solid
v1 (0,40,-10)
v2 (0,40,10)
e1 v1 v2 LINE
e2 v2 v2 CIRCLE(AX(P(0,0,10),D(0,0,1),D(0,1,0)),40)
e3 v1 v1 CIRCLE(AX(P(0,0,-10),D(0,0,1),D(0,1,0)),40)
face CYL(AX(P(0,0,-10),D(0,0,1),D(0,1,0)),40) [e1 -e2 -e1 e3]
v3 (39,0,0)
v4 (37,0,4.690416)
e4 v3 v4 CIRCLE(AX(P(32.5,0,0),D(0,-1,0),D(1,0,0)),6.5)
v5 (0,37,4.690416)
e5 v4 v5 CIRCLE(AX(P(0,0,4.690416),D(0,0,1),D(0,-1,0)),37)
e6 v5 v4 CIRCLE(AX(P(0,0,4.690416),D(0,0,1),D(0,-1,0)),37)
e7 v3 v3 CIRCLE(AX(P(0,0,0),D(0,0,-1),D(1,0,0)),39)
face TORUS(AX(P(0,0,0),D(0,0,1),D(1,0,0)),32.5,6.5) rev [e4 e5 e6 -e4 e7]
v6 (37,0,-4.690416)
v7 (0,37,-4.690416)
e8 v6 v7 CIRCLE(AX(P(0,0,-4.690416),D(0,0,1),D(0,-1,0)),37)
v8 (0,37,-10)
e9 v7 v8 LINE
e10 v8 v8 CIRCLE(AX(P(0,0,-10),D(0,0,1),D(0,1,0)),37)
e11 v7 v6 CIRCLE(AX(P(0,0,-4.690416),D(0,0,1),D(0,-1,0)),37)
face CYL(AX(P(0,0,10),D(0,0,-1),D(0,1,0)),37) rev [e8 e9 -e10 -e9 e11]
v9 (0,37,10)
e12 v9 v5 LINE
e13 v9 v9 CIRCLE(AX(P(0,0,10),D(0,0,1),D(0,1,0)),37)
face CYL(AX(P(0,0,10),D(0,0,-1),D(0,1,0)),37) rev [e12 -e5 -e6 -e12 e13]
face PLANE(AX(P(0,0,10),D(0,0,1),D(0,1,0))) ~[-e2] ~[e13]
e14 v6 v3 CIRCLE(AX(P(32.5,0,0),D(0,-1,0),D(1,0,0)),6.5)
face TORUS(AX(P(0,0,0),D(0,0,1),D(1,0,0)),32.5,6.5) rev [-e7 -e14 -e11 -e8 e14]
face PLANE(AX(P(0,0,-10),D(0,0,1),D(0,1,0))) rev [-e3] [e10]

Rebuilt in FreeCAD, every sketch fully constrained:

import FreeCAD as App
import Part
import Sketcher
from FreeCAD import Vector
Q = App.Units.Quantity

doc = App.newDocument("Part")
body = doc.addObject("PartDesign::Body", "Body")

# Sketch on YZ plane
sketch1 = body.newObject("Sketcher::SketchObject", "Sketch")
sketch1.AttachmentSupport = (doc.getObject("YZ_Plane"), [""])
sketch1.MapMode = "FlatFace"
sketch1.addGeometry(Part.LineSegment(Vector(40, 10, 0), Vector(37, 10, 0)), False)
sketch1.addGeometry(Part.LineSegment(Vector(37, 10, 0), Vector(37, -10, 0)), False)
sketch1.addGeometry(Part.LineSegment(Vector(37, -10, 0), Vector(40, -10, 0)), False)
sketch1.addGeometry(Part.LineSegment(Vector(40, -10, 0), Vector(40, 10, 0)), False)
sketch1.addConstraint(Sketcher.Constraint("Coincident", 0, 2, 1, 1))
sketch1.addConstraint(Sketcher.Constraint("Coincident", 1, 2, 2, 1))
sketch1.addConstraint(Sketcher.Constraint("Coincident", 2, 2, 3, 1))
sketch1.addConstraint(Sketcher.Constraint("Coincident", 3, 2, 0, 1))
sketch1.addConstraint(Sketcher.Constraint("Horizontal", 0))
sketch1.addConstraint(Sketcher.Constraint("Vertical", 1))
sketch1.addConstraint(Sketcher.Constraint("Horizontal", 2))
sketch1.addConstraint(Sketcher.Constraint("Vertical", 3))
sketch1.addConstraint(Sketcher.Constraint("DistanceX", -1, 1, 0, 2, Q("37 mm")))
sketch1.addConstraint(Sketcher.Constraint("DistanceX", -1, 1, 2, 2, Q("40 mm")))
sketch1.addConstraint(Sketcher.Constraint("DistanceY", 1, 2, 1, 1, Q("20 mm")))
sketch1.addConstraint(Sketcher.Constraint("DistanceY", -1, 1, 0, 2, Q("10 mm")))
revolution = body.newObject("PartDesign::Revolution", "Revolution")
revolution.Profile = sketch1
revolution.ReferenceAxis = (sketch1, ["V_Axis"])
revolution.Angle = 360

# Sketch on XZ plane
sketch2 = body.newObject("Sketcher::SketchObject", "Sketch001")
sketch2.AttachmentSupport = (doc.getObject("XZ_Plane"), [""])
sketch2.MapMode = "FlatFace"
sketch2.addGeometry(Part.Circle(Vector(32, 0, 0), Vector(0, 0, 1), 6), False)
sketch2.addConstraint(Sketcher.Constraint("PointOnObject", 0, 3, -1))
sketch2.addConstraint(Sketcher.Constraint("Diameter", 0, Q("13 mm")))
sketch2.addConstraint(Sketcher.Constraint("DistanceX", -1, 1, 0, 3, Q("32.5 mm")))
groove = body.newObject("PartDesign::Groove", "Groove")
groove.Profile = sketch2
groove.ReferenceAxis = (sketch2, ["V_Axis"])
groove.Angle = 360

doc.recompute()
